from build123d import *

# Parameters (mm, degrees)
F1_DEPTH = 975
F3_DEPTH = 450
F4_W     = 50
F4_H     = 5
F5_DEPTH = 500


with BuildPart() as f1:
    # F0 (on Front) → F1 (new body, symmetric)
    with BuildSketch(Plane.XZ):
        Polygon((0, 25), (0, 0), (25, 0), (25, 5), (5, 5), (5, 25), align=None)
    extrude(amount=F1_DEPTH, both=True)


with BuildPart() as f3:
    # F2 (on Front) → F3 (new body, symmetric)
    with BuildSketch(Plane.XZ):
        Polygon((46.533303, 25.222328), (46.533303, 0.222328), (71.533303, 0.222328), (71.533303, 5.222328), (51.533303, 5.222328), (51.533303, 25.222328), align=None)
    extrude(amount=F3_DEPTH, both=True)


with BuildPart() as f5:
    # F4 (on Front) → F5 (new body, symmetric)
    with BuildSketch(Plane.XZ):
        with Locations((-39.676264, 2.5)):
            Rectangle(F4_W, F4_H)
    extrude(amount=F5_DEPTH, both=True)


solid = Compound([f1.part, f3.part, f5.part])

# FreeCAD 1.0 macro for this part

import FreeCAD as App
import Part
import Sketcher
from FreeCAD import Vector
Q = App.Units.Quantity

doc = App.newDocument("Part")
body = doc.addObject("PartDesign::Body", "Body")

# Sketch on XZ plane
sketch1 = body.newObject("Sketcher::SketchObject", "Sketch")
sketch1.AttachmentSupport = (doc.getObject("XZ_Plane"), [""])
sketch1.MapMode = "FlatFace"
sketch1.addGeometry(Part.LineSegment(Vector(0, 25, 0), Vector(0, 0, 0)), False)
sketch1.addGeometry(Part.LineSegment(Vector(0, 0, 0), Vector(25, 0, 0)), False)
sketch1.addGeometry(Part.LineSegment(Vector(25, 0, 0), Vector(25, 5, 0)), False)
sketch1.addGeometry(Part.LineSegment(Vector(25, 5, 0), Vector(5, 5, 0)), False)
sketch1.addGeometry(Part.LineSegment(Vector(5, 5, 0), Vector(5, 25, 0)), False)
sketch1.addGeometry(Part.LineSegment(Vector(5, 25, 0), Vector(0, 25, 0)), False)
sketch1.addConstraint(Sketcher.Constraint("Coincident", 0, 2, 1, 1))
sketch1.addConstraint(Sketcher.Constraint("Coincident", 1, 2, 2, 1))
sketch1.addConstraint(Sketcher.Constraint("Coincident", 2, 2, 3, 1))
sketch1.addConstraint(Sketcher.Constraint("Coincident", 3, 2, 4, 1))
sketch1.addConstraint(Sketcher.Constraint("Coincident", 4, 2, 5, 1))
sketch1.addConstraint(Sketcher.Constraint("Coincident", 5, 2, 0, 1))
sketch1.addConstraint(Sketcher.Constraint("Vertical", 0))
sketch1.addConstraint(Sketcher.Constraint("Horizontal", 1))
sketch1.addConstraint(Sketcher.Constraint("Vertical", 2))
sketch1.addConstraint(Sketcher.Constraint("Horizontal", 3))
sketch1.addConstraint(Sketcher.Constraint("Vertical", 4))
sketch1.addConstraint(Sketcher.Constraint("Horizontal", 5))
sketch1.addConstraint(Sketcher.Constraint("Coincident", 0, 2, -1, 1))
sketch1.addConstraint(Sketcher.Constraint("Equal", 1, 0))
sketch1.addConstraint(Sketcher.Constraint("Equal", 5, 2))
sketch1.addConstraint(Sketcher.Constraint("DistanceX", 1, 1, 1, 2, Q("25 mm")))
sketch1.addConstraint(Sketcher.Constraint("DistanceX", 3, 2, 3, 1, Q("20 mm")))
pad1 = body.newObject("PartDesign::Pad", "Pad")
pad1.Profile = sketch1
pad1.Length = 1950
pad1.Midplane = True
body2 = doc.addObject("PartDesign::Body", "Body001")

# Sketch on XZ plane
sketch2 = body2.newObject("Sketcher::SketchObject", "Sketch001")
sketch2.AttachmentSupport = (doc.getObject("XZ_Plane001"), [""])
sketch2.MapMode = "FlatFace"
sketch2.addGeometry(Part.LineSegment(Vector(46.533303, 25.222328, 0), Vector(46.533303, 0.222328, 0)), False)
sketch2.addGeometry(Part.LineSegment(Vector(46.533303, 0.222328, 0), Vector(71.533303, 0.222328, 0)), False)
sketch2.addGeometry(Part.LineSegment(Vector(71.533303, 0.222328, 0), Vector(71.533303, 5.222328, 0)), False)
sketch2.addGeometry(Part.LineSegment(Vector(71.533303, 5.222328, 0), Vector(51.533303, 5.222328, 0)), False)
sketch2.addGeometry(Part.LineSegment(Vector(51.533303, 5.222328, 0), Vector(51.533303, 25.222328, 0)), False)
sketch2.addGeometry(Part.LineSegment(Vector(51.533303, 25.222328, 0), Vector(46.533303, 25.222328, 0)), False)
sketch2.addConstraint(Sketcher.Constraint("Coincident", 0, 2, 1, 1))
sketch2.addConstraint(Sketcher.Constraint("Coincident", 1, 2, 2, 1))
sketch2.addConstraint(Sketcher.Constraint("Coincident", 2, 2, 3, 1))
sketch2.addConstraint(Sketcher.Constraint("Coincident", 3, 2, 4, 1))
sketch2.addConstraint(Sketcher.Constraint("Coincident", 4, 2, 5, 1))
sketch2.addConstraint(Sketcher.Constraint("Coincident", 5, 2, 0, 1))
sketch2.addConstraint(Sketcher.Constraint("Vertical", 0))
sketch2.addConstraint(Sketcher.Constraint("Horizontal", 1))
sketch2.addConstraint(Sketcher.Constraint("Vertical", 2))
sketch2.addConstraint(Sketcher.Constraint("Horizontal", 3))
sketch2.addConstraint(Sketcher.Constraint("Vertical", 4))
sketch2.addConstraint(Sketcher.Constraint("Horizontal", 5))
sketch2.addConstraint(Sketcher.Constraint("Equal", 1, 0))
sketch2.addConstraint(Sketcher.Constraint("Equal", 5, 2))
sketch2.addConstraint(Sketcher.Constraint("DistanceX", 1, 1, 1, 2, Q("25 mm")))
sketch2.addConstraint(Sketcher.Constraint("DistanceX", 3, 2, 3, 1, Q("20 mm")))
sketch2.addConstraint(Sketcher.Constraint("DistanceY", -1, 1, 4, 2, Q("25.222328 mm")))
sketch2.addConstraint(Sketcher.Constraint("DistanceX", -1, 1, 0, 2, Q("46.533303 mm")))
pad2 = body2.newObject("PartDesign::Pad", "Pad001")
pad2.Profile = sketch2
pad2.Length = 900
pad2.Midplane = True
body3 = doc.addObject("PartDesign::Body", "Body002")

# Sketch on XZ plane
sketch3 = body3.newObject("Sketcher::SketchObject", "Sketch002")
sketch3.AttachmentSupport = (doc.getObject("XZ_Plane002"), [""])
sketch3.MapMode = "FlatFace"
sketch3.addGeometry(Part.LineSegment(Vector(-64.676264, 5, 0), Vector(-64.676264, 0, 0)), False)
sketch3.addGeometry(Part.LineSegment(Vector(-64.676264, 0, 0), Vector(-14.676264, 0, 0)), False)
sketch3.addGeometry(Part.LineSegment(Vector(-14.676264, 0, 0), Vector(-14.676264, 5, 0)), False)
sketch3.addGeometry(Part.LineSegment(Vector(-14.676264, 5, 0), Vector(-64.676264, 5, 0)), False)
sketch3.addConstraint(Sketcher.Constraint("Coincident", 0, 2, 1, 1))
sketch3.addConstraint(Sketcher.Constraint("Coincident", 1, 2, 2, 1))
sketch3.addConstraint(Sketcher.Constraint("Coincident", 2, 2, 3, 1))
sketch3.addConstraint(Sketcher.Constraint("Coincident", 3, 2, 0, 1))
sketch3.addConstraint(Sketcher.Constraint("Vertical", 0))
sketch3.addConstraint(Sketcher.Constraint("Horizontal", 1))
sketch3.addConstraint(Sketcher.Constraint("Vertical", 2))
sketch3.addConstraint(Sketcher.Constraint("Horizontal", 3))
sketch3.addConstraint(Sketcher.Constraint("PointOnObject", 0, 2, -1))
sketch3.addConstraint(Sketcher.Constraint("DistanceX", 1, 1, 1, 2, Q("50 mm")))
sketch3.addConstraint(Sketcher.Constraint("DistanceY", 0, 2, 0, 1, Q("5 mm")))
sketch3.addConstraint(Sketcher.Constraint("DistanceX", 0, 2, -1, 1, Q("64.676264 mm")))
pad3 = body3.newObject("PartDesign::Pad", "Pad002")
pad3.Profile = sketch3
pad3.Length = 1000
pad3.Midplane = True

doc.recompute()
